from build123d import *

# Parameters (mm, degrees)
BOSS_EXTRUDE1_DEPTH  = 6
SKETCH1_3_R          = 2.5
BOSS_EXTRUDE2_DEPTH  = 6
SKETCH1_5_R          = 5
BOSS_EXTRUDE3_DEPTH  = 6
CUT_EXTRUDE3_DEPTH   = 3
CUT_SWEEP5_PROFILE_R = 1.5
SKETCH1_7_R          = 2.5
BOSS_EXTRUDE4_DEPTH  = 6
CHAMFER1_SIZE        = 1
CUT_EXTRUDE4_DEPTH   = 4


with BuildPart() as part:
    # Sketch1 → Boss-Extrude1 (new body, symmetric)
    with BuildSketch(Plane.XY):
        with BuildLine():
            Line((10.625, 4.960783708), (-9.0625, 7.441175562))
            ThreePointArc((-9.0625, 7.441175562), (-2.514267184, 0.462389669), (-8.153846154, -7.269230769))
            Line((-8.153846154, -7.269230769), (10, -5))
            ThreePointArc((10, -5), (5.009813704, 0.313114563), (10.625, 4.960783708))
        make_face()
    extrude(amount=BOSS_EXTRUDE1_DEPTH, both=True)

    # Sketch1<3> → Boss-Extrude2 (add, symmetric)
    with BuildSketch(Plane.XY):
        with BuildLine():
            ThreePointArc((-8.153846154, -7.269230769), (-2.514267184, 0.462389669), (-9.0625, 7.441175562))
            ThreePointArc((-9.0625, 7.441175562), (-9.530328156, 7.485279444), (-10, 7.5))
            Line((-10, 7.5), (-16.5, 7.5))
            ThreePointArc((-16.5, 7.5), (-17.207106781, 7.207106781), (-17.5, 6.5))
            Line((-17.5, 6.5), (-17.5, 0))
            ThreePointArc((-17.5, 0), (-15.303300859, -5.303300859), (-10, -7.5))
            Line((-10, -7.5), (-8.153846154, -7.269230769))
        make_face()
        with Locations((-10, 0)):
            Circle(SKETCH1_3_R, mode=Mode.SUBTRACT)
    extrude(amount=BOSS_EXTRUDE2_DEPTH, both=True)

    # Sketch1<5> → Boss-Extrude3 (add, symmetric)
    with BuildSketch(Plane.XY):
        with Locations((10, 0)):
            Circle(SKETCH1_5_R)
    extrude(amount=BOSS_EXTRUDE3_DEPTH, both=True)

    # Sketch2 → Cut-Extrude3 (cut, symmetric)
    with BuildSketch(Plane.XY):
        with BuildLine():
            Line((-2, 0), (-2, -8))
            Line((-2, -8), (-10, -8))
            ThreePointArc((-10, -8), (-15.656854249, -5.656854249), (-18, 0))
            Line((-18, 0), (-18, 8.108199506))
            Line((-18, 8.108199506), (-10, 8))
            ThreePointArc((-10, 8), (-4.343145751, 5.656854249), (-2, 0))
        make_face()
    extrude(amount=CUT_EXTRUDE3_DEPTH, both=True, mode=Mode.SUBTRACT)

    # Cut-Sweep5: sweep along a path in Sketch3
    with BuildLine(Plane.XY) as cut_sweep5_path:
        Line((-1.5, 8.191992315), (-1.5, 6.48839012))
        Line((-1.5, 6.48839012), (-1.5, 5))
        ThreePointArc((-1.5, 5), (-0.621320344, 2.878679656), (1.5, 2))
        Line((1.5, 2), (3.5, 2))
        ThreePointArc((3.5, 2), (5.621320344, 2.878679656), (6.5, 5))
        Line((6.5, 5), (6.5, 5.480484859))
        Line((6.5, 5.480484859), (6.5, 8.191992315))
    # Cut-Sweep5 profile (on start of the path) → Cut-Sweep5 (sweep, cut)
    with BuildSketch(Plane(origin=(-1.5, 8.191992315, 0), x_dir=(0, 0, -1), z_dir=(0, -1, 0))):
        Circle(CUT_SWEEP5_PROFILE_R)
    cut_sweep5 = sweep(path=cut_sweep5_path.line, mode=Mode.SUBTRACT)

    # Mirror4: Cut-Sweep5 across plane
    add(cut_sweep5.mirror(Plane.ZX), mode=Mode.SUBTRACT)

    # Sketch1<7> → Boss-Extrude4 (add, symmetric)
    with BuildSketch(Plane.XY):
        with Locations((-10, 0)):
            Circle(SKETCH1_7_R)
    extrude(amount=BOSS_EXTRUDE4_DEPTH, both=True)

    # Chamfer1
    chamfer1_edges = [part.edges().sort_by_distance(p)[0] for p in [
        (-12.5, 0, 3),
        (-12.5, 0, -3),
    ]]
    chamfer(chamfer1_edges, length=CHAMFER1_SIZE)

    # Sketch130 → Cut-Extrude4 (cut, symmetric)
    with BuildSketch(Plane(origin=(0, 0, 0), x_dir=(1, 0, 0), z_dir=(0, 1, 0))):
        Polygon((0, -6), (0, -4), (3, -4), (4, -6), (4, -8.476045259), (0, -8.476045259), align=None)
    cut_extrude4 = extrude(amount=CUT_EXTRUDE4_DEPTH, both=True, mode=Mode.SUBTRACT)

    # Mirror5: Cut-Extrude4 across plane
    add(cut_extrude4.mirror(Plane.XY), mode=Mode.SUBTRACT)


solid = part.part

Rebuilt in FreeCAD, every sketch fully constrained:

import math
import FreeCAD as App
import Part
import Sketcher

V = App.Vector
Q = App.Units.Quantity


def edges_at(feature, points):
    """Names of the edges that pass closest to the given points."""
    edges = feature.Shape.Edges
    near = lambda p: min(range(len(edges)), key=lambda i: edges[i].distToShape(Part.Vertex(*p))[0])
    return sorted({f"Edge{near(p) + 1}" for p in points})


def add_polygon(sketch, points):
    """Adds a closed chain of lines whose ends are joined by coincident constraints."""
    first, n = sketch.GeometryCount, len(points)
    for a, b in zip(points, points[1:] + points[:1]):
        sketch.addGeometry(Part.LineSegment(App.Vector(*a, 0), App.Vector(*b, 0)), False)
    for i in range(n):
        sketch.addConstraint(Sketcher.Constraint("Coincident", first + i, 2, first + (i + 1) % n, 1))

doc = App.newDocument("Part")
params = doc.addObject("Spreadsheet::Sheet", "Params")
for row, (alias, value) in enumerate([
    ("sketch1_radius", "5 mm"),
    ("sketch1_radius2", "7.5 mm"),
    ("pad1_length", "12 mm"),
    ("sketch2_diameter", "5 mm"),
    ("sketch2_radius", "1 mm"),
    ("sketch2_radius2", "7.5 mm"),
    ("pad2_length", "12 mm"),
    ("sketch3_diameter", "10 mm"),
    ("pad3_length", "12 mm"),
    ("sketch4_radius", "8 mm"),
    ("pocket1_length", "6 mm"),
    ("sketch5_diameter", "3 mm"),
    ("sketch6_radius", "3 mm"),
    ("sketch6_width", "2 mm"),
    ("sketch7_diameter", "5 mm"),
    ("pad4_length", "12 mm"),
    ("chamfer_size", "1 mm"),
    ("sketch8_width", "4 mm"),
    ("sketch8_width2", "3 mm"),
    ("pocket2_length", "8 mm"),
], start=1):
    params.set(f"A{row}", alias)
    params.set(f"B{row}", "=" + value)
    params.setAlias(f"B{row}", alias)

body = doc.addObject("PartDesign::Body", "Body")

# Sketch on XY plane
sketch1 = body.newObject("Sketcher::SketchObject", "Sketch")
sketch1.AttachmentSupport = (doc.getObject("XY_Plane"), [""])
sketch1.MapMode = "FlatFace"
sketch1.addGeometry([
    Part.LineSegment(V(11, 5, 0), V(-9, 7, 0)),
    Part.ArcOfCircle(Part.Circle(V(-10, 0, 0), V(0, 0, 1), 8), math.radians(-76), math.radians(83)),
    Part.LineSegment(V(-8, -7, 0), V(10, -5, 0)),
    Part.ArcOfCircle(Part.Circle(V(10, 0, 0), V(0, 0, 1), 5), math.radians(83), math.radians(270)),
], False)
sketch1.addConstraint([
    Sketcher.Constraint("Tangent", 0, 2, 1, 2),
    Sketcher.Constraint("Coincident", 1, 1, 2, 1),
    Sketcher.Constraint("Coincident", 2, 2, 3, 2),
    Sketcher.Constraint("Tangent", 3, 1, 0, 1),
    Sketcher.Constraint("Symmetric", 1, 3, 3, 3, -1, 1),
    Sketcher.Constraint("PointOnObject", 1, 3, -1),
    Sketcher.Constraint("Vertical", 3, 3, 2, 2),
    Sketcher.Constraint("Radius", 3, Q("5 mm")),
    Sketcher.Constraint("Radius", 1, Q("7.5 mm")),
    Sketcher.Constraint("DistanceX", 1, 3, -1, 1, Q("10 mm")),
    Sketcher.Constraint("DistanceY", 1, 1, -1, 1, Q("7.269231 mm")),
])
sketch1.setExpression("Constraints[7]", "Params.sketch1_radius")
sketch1.setExpression("Constraints[8]", "Params.sketch1_radius2")
pad1 = body.newObject("PartDesign::Pad", "Pad")
pad1.Profile = sketch1
pad1.setExpression("Length", "Params.pad1_length")
pad1.Midplane = True

# Sketch on XY plane
sketch2 = body.newObject("Sketcher::SketchObject", "Sketch001")
sketch2.AttachmentSupport = (doc.getObject("XY_Plane"), [""])
sketch2.MapMode = "FlatFace"
sketch2.addGeometry([
    Part.ArcOfCircle(Part.Circle(V(-10, 0, 0), V(0, 0, 1), 7.5), math.radians(-76), math.radians(83)),  # 0
    Part.ArcOfCircle(Part.Circle(V(-10, 0, 0), V(0, 0, 1), 7.5), math.radians(82.82), math.radians(90)),  # 1
    Part.LineSegment(V(-10, 7.5, 0), V(-16.5, 7.5, 0)),  # 2
    Part.ArcOfCircle(Part.Circle(V(-16.5, 6.5, 0), V(0, 0, 1), 1), math.radians(90), math.radians(180)),  # 3
    Part.LineSegment(V(-17.5, 6.5, 0), V(-17.5, 0, 0)),  # 4
    Part.ArcOfCircle(Part.Circle(V(-10, 0, 0), V(0, 0, 1), 7.5), math.radians(180), math.radians(270)),  # 5
    Part.LineSegment(V(-10, -7.5, 0), V(-8.2, -7.3, 0)),  # 6
    Part.Circle(V(-10, 0, 0), V(0, 0, 1), 2.5),  # 7
], False)
sketch2.addConstraint([
    Sketcher.Constraint("Tangent", 0, 2, 1, 1),
    Sketcher.Constraint("Tangent", 1, 2, 2, 1),
    Sketcher.Constraint("Tangent", 2, 2, 3, 1),
    Sketcher.Constraint("Tangent", 3, 2, 4, 1),
    Sketcher.Constraint("Tangent", 4, 2, 5, 1),
    Sketcher.Constraint("Coincident", 5, 2, 6, 1),
    Sketcher.Constraint("Coincident", 6, 2, 0, 1),
    Sketcher.Constraint("Horizontal", 2),
    Sketcher.Constraint("Vertical", 4),
    Sketcher.Constraint("Coincident", 5, 3, 0, 3),
    Sketcher.Constraint("Coincident", 7, 3, 0, 3),
    Sketcher.Constraint("Equal", 0, 1),
    Sketcher.Constraint("Equal", 1, 5),
    Sketcher.Constraint("Symmetric", 1, 2, 5, 2, -1),
    Sketcher.Constraint("Diameter", 7, Q("5 mm")),
    Sketcher.Constraint("Radius", 3, Q("1 mm")),
    Sketcher.Constraint("Radius", 0, Q("7.5 mm")),
    Sketcher.Constraint("DistanceX", 0, 3, -1, 1, Q("10 mm")),
    Sketcher.Constraint("DistanceX", 0, 2, -1, 1, Q("9.0625 mm")),
    Sketcher.Constraint("Distance", 6, Q("1.860521 mm")),
])
sketch2.setExpression("Constraints[14]", "Params.sketch2_diameter")
sketch2.setExpression("Constraints[15]", "Params.sketch2_radius")
sketch2.setExpression("Constraints[16]", "Params.sketch2_radius2")
pad2 = body.newObject("PartDesign::Pad", "Pad001")
pad2.Profile = sketch2
pad2.setExpression("Length", "Params.pad2_length")
pad2.Midplane = True

# Sketch on XY plane
sketch3 = body.newObject("Sketcher::SketchObject", "Sketch002")
sketch3.AttachmentSupport = (doc.getObject("XY_Plane"), [""])
sketch3.MapMode = "FlatFace"
sketch3.addGeometry(Part.Circle(V(10, 0, 0), V(0, 0, 1), 5), False)
sketch3.addConstraint([
    Sketcher.Constraint("PointOnObject", 0, 3, -1),
    Sketcher.Constraint("Diameter", 0, Q("10 mm")),
    Sketcher.Constraint("DistanceX", -1, 1, 0, 3, Q("10 mm")),
])
sketch3.setExpression("Constraints[1]", "Params.sketch3_diameter")
pad3 = body.newObject("PartDesign::Pad", "Pad002")
pad3.Profile = sketch3
pad3.setExpression("Length", "Params.pad3_length")
pad3.Midplane = True

# Sketch on XY plane
sketch4 = body.newObject("Sketcher::SketchObject", "Sketch003")
sketch4.AttachmentSupport = (doc.getObject("XY_Plane"), [""])
sketch4.MapMode = "FlatFace"
sketch4.addGeometry([
    Part.LineSegment(V(-2, -8, 0), V(-2, 0, 0)),  # 0
    Part.ArcOfCircle(Part.Circle(V(-10, 0, 0), V(0, 0, 1), 8), math.radians(0), math.radians(90)),  # 1
    Part.LineSegment(V(-10, 8, 0), V(-18, 8, 0)),  # 2
    Part.LineSegment(V(-18, 8, 0), V(-18, 0, 0)),  # 3
    Part.ArcOfCircle(Part.Circle(V(-10, 0, 0), V(0, 0, 1), 8), math.radians(-180), math.radians(-90)),  # 4
    Part.LineSegment(V(-10, -8, 0), V(-2, -8, 0)),  # 5
], False)
sketch4.addConstraint([
    Sketcher.Constraint("Tangent", 0, 2, 1, 1),
    Sketcher.Constraint("Coincident", 1, 2, 2, 1),
    Sketcher.Constraint("Coincident", 2, 2, 3, 1),
    Sketcher.Constraint("Tangent", 3, 2, 4, 1),
    Sketcher.Constraint("Tangent", 4, 2, 5, 1),
    Sketcher.Constraint("Coincident", 5, 2, 0, 1),
    Sketcher.Constraint("Vertical", 0),
    Sketcher.Constraint("Vertical", 3),
    Sketcher.Constraint("Horizontal", 5),
    Sketcher.Constraint("Coincident", 4, 3, 1, 3),
    Sketcher.Constraint("Equal", 1, 4),
    Sketcher.Constraint("Symmetric", 1, 2, 4, 2, -1),
    Sketcher.Constraint("Radius", 1, Q("8 mm")),
    Sketcher.Constraint("DistanceX", 1, 3, -1, 1, Q("10 mm")),
    Sketcher.Constraint("DistanceY", 3, 2, 3, 1, Q("8.1082 mm")),
])
sketch4.setExpression("Constraints[12]", "Params.sketch4_radius")
pocket1 = body.newObject("PartDesign::Pocket", "Pocket")
pocket1.Profile = sketch4
pocket1.setExpression("Length", "Params.pocket1_length")
pocket1.Midplane = True

# Sketch on XZ plane
sketch5 = body.newObject("Sketcher::SketchObject", "Sketch004")
sketch5.AttachmentSupport = (doc.getObject("XZ_Plane"), [""])
sketch5.MapMode = "FlatFace"
sketch5.AttachmentOffset = App.Placement(V(0, 0, -8.191992), App.Rotation())
sketch5.addGeometry(Part.Circle(V(-1.5, 0, 0), V(0, 0, 1), 1.5), False)
sketch5.addConstraint([
    Sketcher.Constraint("PointOnObject", 0, 3, -1),
    Sketcher.Constraint("Diameter", 0, Q("3 mm")),
    Sketcher.Constraint("DistanceX", 0, 3, -1, 1, Q("1.5 mm")),
])
sketch5.setExpression("Constraints[1]", "Params.sketch5_diameter")

# Sketch on XY plane
sketch6 = body.newObject("Sketcher::SketchObject", "Sketch005")
sketch6.AttachmentSupport = (doc.getObject("XY_Plane"), [""])
sketch6.MapMode = "FlatFace"
sketch6.addGeometry([
    Part.LineSegment(V(-1.5, 8.2, 0), V(-1.5, 5, 0)),  # 0
    Part.ArcOfCircle(Part.Circle(V(1.5, 5, 0), V(0, 0, 1), 3), math.radians(180), math.radians(270)),  # 1
    Part.LineSegment(V(1.5, 2, 0), V(3.5, 2, 0)),  # 2
    Part.ArcOfCircle(Part.Circle(V(3.5, 5, 0), V(0, 0, 1), 3), math.radians(-90), math.radians(0)),  # 3
    Part.LineSegment(V(6.5, 5, 0), V(6.5, 8.2, 0)),  # 4
], False)
sketch6.addConstraint([
    Sketcher.Constraint("Tangent", 0, 2, 1, 1),
    Sketcher.Constraint("Tangent", 1, 2, 2, 1),
    Sketcher.Constraint("Tangent", 2, 2, 3, 1),
    Sketcher.Constraint("Tangent", 3, 2, 4, 1),
    Sketcher.Constraint("Vertical", 0),
    Sketcher.Constraint("Horizontal", 2),
    Sketcher.Constraint("Vertical", 4),
    Sketcher.Constraint("Equal", 1, 3),
    Sketcher.Constraint("Horizontal", 0, 1, 4, 2),
    Sketcher.Constraint("Radius", 1, Q("3 mm")),
    Sketcher.Constraint("DistanceX", 2, 1, 2, 2, Q("2 mm")),
    Sketcher.Constraint("DistanceY", -1, 1, 1, 3, Q("5 mm")),
    Sketcher.Constraint("DistanceX", -1, 1, 1, 3, Q("1.5 mm")),
    Sketcher.Constraint("DistanceY", 0, 2, 0, 1, Q("3.191992 mm")),
])
sketch6.setExpression("Constraints[9]", "Params.sketch6_radius")
sketch6.setExpression("Constraints[10]", "Params.sketch6_width")
doc.recompute()

subtractivepipe = body.newObject("PartDesign::SubtractivePipe", "SubtractivePipe")
subtractivepipe.Profile = sketch5
subtractivepipe.Spine = (sketch6, ["Edge1", "Edge2", "Edge3", "Edge4", "Edge5"])
doc.recompute()

mirrored = body.newObject("PartDesign::Mirrored", "Mirrored")
mirrored.Originals = [subtractivepipe]
mirrored.MirrorPlane = (doc.getObject("XZ_Plane"), [""])
body.Tip = mirrored

# Sketch on XY plane
sketch7 = body.newObject("Sketcher::SketchObject", "Sketch006")
sketch7.AttachmentSupport = (doc.getObject("XY_Plane"), [""])
sketch7.MapMode = "FlatFace"
sketch7.addGeometry(Part.Circle(V(-10, 0, 0), V(0, 0, 1), 2.5), False)
sketch7.addConstraint([
    Sketcher.Constraint("PointOnObject", 0, 3, -1),
    Sketcher.Constraint("Diameter", 0, Q("5 mm")),
    Sketcher.Constraint("DistanceX", 0, 3, -1, 1, Q("10 mm")),
])
sketch7.setExpression("Constraints[1]", "Params.sketch7_diameter")
pad4 = body.newObject("PartDesign::Pad", "Pad003")
pad4.Profile = sketch7
pad4.setExpression("Length", "Params.pad4_length")
pad4.Midplane = True
doc.recompute()

chamfer = body.newObject("PartDesign::Chamfer", "Chamfer")
chamfer.Base = (pad4, edges_at(pad4, [(-12.5, 0, 3), (-12.5, 0, -3)]))
chamfer.setExpression("Size", "Params.chamfer_size")

# Sketch on XZ plane
sketch8 = body.newObject("Sketcher::SketchObject", "Sketch007")
sketch8.AttachmentSupport = (doc.getObject("XZ_Plane"), [""])
sketch8.MapMode = "FlatFace"
add_polygon(sketch8, [(0, 4), (0, 8.5), (4, 8.5), (4, 6), (3, 4)])  # lines 0-4
sketch8.addConstraint([
    Sketcher.Constraint("Vertical", 0),
    Sketcher.Constraint("Horizontal", 1),
    Sketcher.Constraint("Vertical", 2),
    Sketcher.Constraint("Horizontal", 4),
    Sketcher.Constraint("PointOnObject", 0, 2, -2),
    Sketcher.Constraint("DistanceX", 1, 1, 1, 2, Q("4 mm")),
    Sketcher.Constraint("DistanceX", 4, 2, 4, 1, Q("3 mm")),
    Sketcher.Constraint("DistanceY", -1, 1, 2, 2, Q("6 mm")),
    Sketcher.Constraint("DistanceY", -1, 1, 3, 2, Q("4 mm")),
    Sketcher.Constraint("DistanceY", 0, 1, 0, 2, Q("4.476045 mm")),
])
sketch8.setExpression("Constraints[10]", "Params.sketch8_width")
sketch8.setExpression("Constraints[11]", "Params.sketch8_width2")
pocket2 = body.newObject("PartDesign::Pocket", "Pocket001")
pocket2.Profile = sketch8
pocket2.setExpression("Length", "Params.pocket2_length")
pocket2.Midplane = True
doc.recompute()

mirrored2 = body.newObject("PartDesign::Mirrored", "Mirrored001")
mirrored2.Originals = [pocket2]
mirrored2.MirrorPlane = (doc.getObject("XY_Plane"), [""])
body.Tip = mirrored2

doc.recompute()
